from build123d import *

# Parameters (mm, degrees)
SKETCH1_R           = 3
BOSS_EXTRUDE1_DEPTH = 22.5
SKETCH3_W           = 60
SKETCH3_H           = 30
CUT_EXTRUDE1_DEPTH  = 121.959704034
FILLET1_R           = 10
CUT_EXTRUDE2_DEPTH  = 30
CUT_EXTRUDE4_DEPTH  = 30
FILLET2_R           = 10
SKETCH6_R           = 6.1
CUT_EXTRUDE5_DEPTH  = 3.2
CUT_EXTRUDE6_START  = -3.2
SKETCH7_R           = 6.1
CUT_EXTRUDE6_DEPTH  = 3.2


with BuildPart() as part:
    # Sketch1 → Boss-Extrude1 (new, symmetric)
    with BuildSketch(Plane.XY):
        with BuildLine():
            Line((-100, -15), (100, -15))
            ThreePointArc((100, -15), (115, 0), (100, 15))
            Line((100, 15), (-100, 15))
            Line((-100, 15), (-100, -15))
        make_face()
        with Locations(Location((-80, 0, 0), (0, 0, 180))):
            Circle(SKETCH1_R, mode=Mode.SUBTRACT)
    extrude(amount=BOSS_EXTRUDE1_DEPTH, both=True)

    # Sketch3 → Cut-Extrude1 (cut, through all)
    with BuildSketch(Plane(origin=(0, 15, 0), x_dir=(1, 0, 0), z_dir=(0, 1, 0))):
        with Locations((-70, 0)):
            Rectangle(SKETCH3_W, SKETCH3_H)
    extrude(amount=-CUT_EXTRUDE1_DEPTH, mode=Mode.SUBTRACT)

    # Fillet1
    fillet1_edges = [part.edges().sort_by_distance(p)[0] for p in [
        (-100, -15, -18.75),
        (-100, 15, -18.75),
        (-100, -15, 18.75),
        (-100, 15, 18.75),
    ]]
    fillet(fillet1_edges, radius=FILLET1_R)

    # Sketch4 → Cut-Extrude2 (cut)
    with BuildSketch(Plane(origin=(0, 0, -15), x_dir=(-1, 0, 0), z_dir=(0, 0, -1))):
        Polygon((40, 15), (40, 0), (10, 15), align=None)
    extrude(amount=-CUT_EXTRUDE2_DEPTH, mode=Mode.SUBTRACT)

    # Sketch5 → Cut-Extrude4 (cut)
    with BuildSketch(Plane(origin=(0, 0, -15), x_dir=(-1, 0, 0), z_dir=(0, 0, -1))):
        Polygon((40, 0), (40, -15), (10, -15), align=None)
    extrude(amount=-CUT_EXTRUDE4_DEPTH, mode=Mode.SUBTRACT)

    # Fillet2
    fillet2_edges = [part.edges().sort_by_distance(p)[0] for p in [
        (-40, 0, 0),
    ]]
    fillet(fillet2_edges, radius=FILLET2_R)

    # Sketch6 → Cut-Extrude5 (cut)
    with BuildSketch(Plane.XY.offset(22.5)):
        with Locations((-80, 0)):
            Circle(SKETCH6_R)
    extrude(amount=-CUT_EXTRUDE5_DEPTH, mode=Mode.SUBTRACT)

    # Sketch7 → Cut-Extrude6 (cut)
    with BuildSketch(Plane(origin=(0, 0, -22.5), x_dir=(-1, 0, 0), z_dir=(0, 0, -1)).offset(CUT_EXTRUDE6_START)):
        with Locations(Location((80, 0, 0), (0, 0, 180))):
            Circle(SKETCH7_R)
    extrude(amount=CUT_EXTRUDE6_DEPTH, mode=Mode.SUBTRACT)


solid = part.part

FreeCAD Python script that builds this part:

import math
import FreeCAD as App
import Part
import Sketcher
Q = App.Units.Quantity


def edges_at(feature, points):
    """Names of the edges that pass closest to the given points."""
    edges = feature.Shape.Edges
    near = lambda p: min(range(len(edges)), key=lambda i: edges[i].distToShape(Part.Vertex(*p))[0])
    return sorted({f"Edge{near(p) + 1}" for p in points})


def add_polygon(sketch, points):
    """Adds a closed chain of lines whose ends are joined by coincident constraints."""
    first, n = sketch.GeometryCount, len(points)
    for a, b in zip(points, points[1:] + points[:1]):
        sketch.addGeometry(Part.LineSegment(App.Vector(*a, 0), App.Vector(*b, 0)), False)
    for i in range(n):
        sketch.addConstraint(Sketcher.Constraint("Coincident", first + i, 2, first + (i + 1) % n, 1))

doc = App.newDocument("Part")
body = doc.addObject("PartDesign::Body", "Body")

# Sketch on XY plane
sketch1 = body.newObject("Sketcher::SketchObject", "Sketch")
sketch1.AttachmentSupport = (doc.getObject("XY_Plane"), [""])
sketch1.MapMode = "FlatFace"
sketch1.addGeometry(Part.LineSegment(App.Vector(-100, -15, 0), App.Vector(100, -15, 0)), False)
sketch1.addGeometry(Part.ArcOfCircle(Part.Circle(App.Vector(100, 0, 0), App.Vector(0, 0, 1), 15), math.radians(-90), math.radians(90)), False)
sketch1.addGeometry(Part.LineSegment(App.Vector(100, 15, 0), App.Vector(-100, 15, 0)), False)
sketch1.addGeometry(Part.LineSegment(App.Vector(-100, 15, 0), App.Vector(-100, -15, 0)), False)
sketch1.addGeometry(Part.Circle(App.Vector(-80, 0, 0), App.Vector(0, 0, 1), 3), False)
sketch1.addConstraint(Sketcher.Constraint("Tangent", 0, 2, 1, 1))
sketch1.addConstraint(Sketcher.Constraint("Tangent", 1, 2, 2, 1))
sketch1.addConstraint(Sketcher.Constraint("Coincident", 2, 2, 3, 1))
sketch1.addConstraint(Sketcher.Constraint("Coincident", 3, 2, 0, 1))
sketch1.addConstraint(Sketcher.Constraint("Horizontal", 0))
sketch1.addConstraint(Sketcher.Constraint("Horizontal", 2))
sketch1.addConstraint(Sketcher.Constraint("Vertical", 3))
sketch1.addConstraint(Sketcher.Constraint("Symmetric", 0, 2, 2, 2, -1, 1))
sketch1.addConstraint(Sketcher.Constraint("PointOnObject", 4, 3, -1))
sketch1.addConstraint(Sketcher.Constraint("Diameter", 4, Q("6 mm")))
sketch1.addConstraint(Sketcher.Constraint("Radius", 1, Q("15 mm")))
sketch1.addConstraint(Sketcher.Constraint("DistanceX", 0, 1, 0, 2, Q("200 mm")))
sketch1.addConstraint(Sketcher.Constraint("DistanceX", 4, 3, -1, 1, Q("80 mm")))
pad1 = body.newObject("PartDesign::Pad", "Pad")
pad1.Profile = sketch1
pad1.Length = 45
pad1.Midplane = True

# Sketch on XZ plane
sketch2 = body.newObject("Sketcher::SketchObject", "Sketch001")
sketch2.AttachmentSupport = (doc.getObject("XZ_Plane"), [""])
sketch2.MapMode = "FlatFace"
sketch2.AttachmentOffset = App.Placement(App.Vector(0, 0, -15), App.Rotation())
add_polygon(sketch2, [(-100, -15), (-100, 15), (-40, 15), (-40, -15)])  # lines 0-3
sketch2.addConstraint(Sketcher.Constraint("Vertical", 0))
sketch2.addConstraint(Sketcher.Constraint("Horizontal", 1))
sketch2.addConstraint(Sketcher.Constraint("Vertical", 2))
sketch2.addConstraint(Sketcher.Constraint("Horizontal", 3))
sketch2.addConstraint(Sketcher.Constraint("DistanceX", 1, 1, 1, 2, Q("60 mm")))
sketch2.addConstraint(Sketcher.Constraint("DistanceY", 0, 1, 0, 2, Q("30 mm")))
sketch2.addConstraint(Sketcher.Constraint("DistanceX", 0, 2, -1, 1, Q("100 mm")))
sketch2.addConstraint(Sketcher.Constraint("DistanceY", -1, 1, 0, 2, Q("15 mm")))
pocket1 = body.newObject("PartDesign::Pocket", "Pocket")
pocket1.Profile = sketch2
pocket1.Type = "ThroughAll"
pocket1.Reversed = True
doc.recompute()

fillet = body.newObject("PartDesign::Fillet", "Fillet")
fillet.Base = (pocket1, edges_at(pocket1, [
    (-100, -15, -18.75),
    (-100, 15, -18.75),
    (-100, -15, 18.75),
    (-100, 15, 18.75),
]))
fillet.Radius = 10

# Sketch on XY plane
sketch3 = body.newObject("Sketcher::SketchObject", "Sketch002")
sketch3.AttachmentSupport = (doc.getObject("XY_Plane"), [""])
sketch3.MapMode = "FlatFace"
sketch3.AttachmentOffset = App.Placement(App.Vector(0, 0, -15), App.Rotation())
add_polygon(sketch3, [(-40, 0), (-40, 15), (-10, 15)])  # lines 0-2
sketch3.addConstraint(Sketcher.Constraint("Vertical", 0))
sketch3.addConstraint(Sketcher.Constraint("Horizontal", 1))
sketch3.addConstraint(Sketcher.Constraint("PointOnObject", 2, 2, -1))
sketch3.addConstraint(Sketcher.Constraint("DistanceX", 1, 1, 1, 2, Q("30 mm")))
sketch3.addConstraint(Sketcher.Constraint("DistanceY", 0, 1, 0, 2, Q("15 mm")))
sketch3.addConstraint(Sketcher.Constraint("DistanceX", 0, 2, -1, 1, Q("40 mm")))
pocket2 = body.newObject("PartDesign::Pocket", "Pocket001")
pocket2.Profile = sketch3
pocket2.Length = 30
pocket2.Reversed = True

# Sketch on XY plane
sketch4 = body.newObject("Sketcher::SketchObject", "Sketch003")
sketch4.AttachmentSupport = (doc.getObject("XY_Plane"), [""])
sketch4.MapMode = "FlatFace"
sketch4.AttachmentOffset = App.Placement(App.Vector(0, 0, -15), App.Rotation())
add_polygon(sketch4, [(-40, -15), (-40, 0), (-10, -15)])  # lines 0-2
sketch4.addConstraint(Sketcher.Constraint("Vertical", 0))
sketch4.addConstraint(Sketcher.Constraint("Horizontal", 2))
sketch4.addConstraint(Sketcher.Constraint("PointOnObject", 0, 2, -1))
sketch4.addConstraint(Sketcher.Constraint("DistanceX", 2, 2, 2, 1, Q("30 mm")))
sketch4.addConstraint(Sketcher.Constraint("DistanceY", 0, 1, 0, 2, Q("15 mm")))
sketch4.addConstraint(Sketcher.Constraint("DistanceX", 0, 2, -1, 1, Q("40 mm")))
pocket3 = body.newObject("PartDesign::Pocket", "Pocket002")
pocket3.Profile = sketch4
pocket3.Length = 30
pocket3.Reversed = True
doc.recompute()

fillet2 = body.newObject("PartDesign::Fillet", "Fillet001")
fillet2.Base = (pocket3, edges_at(pocket3, [(-40, 0, 0)]))
fillet2.Radius = 10

# Sketch on XY plane
sketch5 = body.newObject("Sketcher::SketchObject", "Sketch004")
sketch5.AttachmentSupport = (doc.getObject("XY_Plane"), [""])
sketch5.MapMode = "FlatFace"
sketch5.AttachmentOffset = App.Placement(App.Vector(0, 0, 22.5), App.Rotation())
sketch5.addGeometry(Part.Circle(App.Vector(-80, 0, 0), App.Vector(0, 0, 1), 6), False)
sketch5.addConstraint(Sketcher.Constraint("PointOnObject", 0, 3, -1))
sketch5.addConstraint(Sketcher.Constraint("Diameter", 0, Q("12.2 mm")))
sketch5.addConstraint(Sketcher.Constraint("DistanceX", 0, 3, -1, 1, Q("80 mm")))
pocket4 = body.newObject("PartDesign::Pocket", "Pocket003")
pocket4.Profile = sketch5
pocket4.Length = 3.2

# Sketch on XY plane
sketch6 = body.newObject("Sketcher::SketchObject", "Sketch005")
sketch6.AttachmentSupport = (doc.getObject("XY_Plane"), [""])
sketch6.MapMode = "FlatFace"
sketch6.AttachmentOffset = App.Placement(App.Vector(0, 0, -19.3), App.Rotation())
sketch6.addGeometry(Part.Circle(App.Vector(-80, 0, 0), App.Vector(0, 0, 1), 6), False)
sketch6.addConstraint(Sketcher.Constraint("PointOnObject", 0, 3, -1))
sketch6.addConstraint(Sketcher.Constraint("Diameter", 0, Q("12.2 mm")))
sketch6.addConstraint(Sketcher.Constraint("DistanceX", 0, 3, -1, 1, Q("80 mm")))
pocket5 = body.newObject("PartDesign::Pocket", "Pocket004")
pocket5.Profile = sketch6
pocket5.Length = 3.2

doc.recompute()
